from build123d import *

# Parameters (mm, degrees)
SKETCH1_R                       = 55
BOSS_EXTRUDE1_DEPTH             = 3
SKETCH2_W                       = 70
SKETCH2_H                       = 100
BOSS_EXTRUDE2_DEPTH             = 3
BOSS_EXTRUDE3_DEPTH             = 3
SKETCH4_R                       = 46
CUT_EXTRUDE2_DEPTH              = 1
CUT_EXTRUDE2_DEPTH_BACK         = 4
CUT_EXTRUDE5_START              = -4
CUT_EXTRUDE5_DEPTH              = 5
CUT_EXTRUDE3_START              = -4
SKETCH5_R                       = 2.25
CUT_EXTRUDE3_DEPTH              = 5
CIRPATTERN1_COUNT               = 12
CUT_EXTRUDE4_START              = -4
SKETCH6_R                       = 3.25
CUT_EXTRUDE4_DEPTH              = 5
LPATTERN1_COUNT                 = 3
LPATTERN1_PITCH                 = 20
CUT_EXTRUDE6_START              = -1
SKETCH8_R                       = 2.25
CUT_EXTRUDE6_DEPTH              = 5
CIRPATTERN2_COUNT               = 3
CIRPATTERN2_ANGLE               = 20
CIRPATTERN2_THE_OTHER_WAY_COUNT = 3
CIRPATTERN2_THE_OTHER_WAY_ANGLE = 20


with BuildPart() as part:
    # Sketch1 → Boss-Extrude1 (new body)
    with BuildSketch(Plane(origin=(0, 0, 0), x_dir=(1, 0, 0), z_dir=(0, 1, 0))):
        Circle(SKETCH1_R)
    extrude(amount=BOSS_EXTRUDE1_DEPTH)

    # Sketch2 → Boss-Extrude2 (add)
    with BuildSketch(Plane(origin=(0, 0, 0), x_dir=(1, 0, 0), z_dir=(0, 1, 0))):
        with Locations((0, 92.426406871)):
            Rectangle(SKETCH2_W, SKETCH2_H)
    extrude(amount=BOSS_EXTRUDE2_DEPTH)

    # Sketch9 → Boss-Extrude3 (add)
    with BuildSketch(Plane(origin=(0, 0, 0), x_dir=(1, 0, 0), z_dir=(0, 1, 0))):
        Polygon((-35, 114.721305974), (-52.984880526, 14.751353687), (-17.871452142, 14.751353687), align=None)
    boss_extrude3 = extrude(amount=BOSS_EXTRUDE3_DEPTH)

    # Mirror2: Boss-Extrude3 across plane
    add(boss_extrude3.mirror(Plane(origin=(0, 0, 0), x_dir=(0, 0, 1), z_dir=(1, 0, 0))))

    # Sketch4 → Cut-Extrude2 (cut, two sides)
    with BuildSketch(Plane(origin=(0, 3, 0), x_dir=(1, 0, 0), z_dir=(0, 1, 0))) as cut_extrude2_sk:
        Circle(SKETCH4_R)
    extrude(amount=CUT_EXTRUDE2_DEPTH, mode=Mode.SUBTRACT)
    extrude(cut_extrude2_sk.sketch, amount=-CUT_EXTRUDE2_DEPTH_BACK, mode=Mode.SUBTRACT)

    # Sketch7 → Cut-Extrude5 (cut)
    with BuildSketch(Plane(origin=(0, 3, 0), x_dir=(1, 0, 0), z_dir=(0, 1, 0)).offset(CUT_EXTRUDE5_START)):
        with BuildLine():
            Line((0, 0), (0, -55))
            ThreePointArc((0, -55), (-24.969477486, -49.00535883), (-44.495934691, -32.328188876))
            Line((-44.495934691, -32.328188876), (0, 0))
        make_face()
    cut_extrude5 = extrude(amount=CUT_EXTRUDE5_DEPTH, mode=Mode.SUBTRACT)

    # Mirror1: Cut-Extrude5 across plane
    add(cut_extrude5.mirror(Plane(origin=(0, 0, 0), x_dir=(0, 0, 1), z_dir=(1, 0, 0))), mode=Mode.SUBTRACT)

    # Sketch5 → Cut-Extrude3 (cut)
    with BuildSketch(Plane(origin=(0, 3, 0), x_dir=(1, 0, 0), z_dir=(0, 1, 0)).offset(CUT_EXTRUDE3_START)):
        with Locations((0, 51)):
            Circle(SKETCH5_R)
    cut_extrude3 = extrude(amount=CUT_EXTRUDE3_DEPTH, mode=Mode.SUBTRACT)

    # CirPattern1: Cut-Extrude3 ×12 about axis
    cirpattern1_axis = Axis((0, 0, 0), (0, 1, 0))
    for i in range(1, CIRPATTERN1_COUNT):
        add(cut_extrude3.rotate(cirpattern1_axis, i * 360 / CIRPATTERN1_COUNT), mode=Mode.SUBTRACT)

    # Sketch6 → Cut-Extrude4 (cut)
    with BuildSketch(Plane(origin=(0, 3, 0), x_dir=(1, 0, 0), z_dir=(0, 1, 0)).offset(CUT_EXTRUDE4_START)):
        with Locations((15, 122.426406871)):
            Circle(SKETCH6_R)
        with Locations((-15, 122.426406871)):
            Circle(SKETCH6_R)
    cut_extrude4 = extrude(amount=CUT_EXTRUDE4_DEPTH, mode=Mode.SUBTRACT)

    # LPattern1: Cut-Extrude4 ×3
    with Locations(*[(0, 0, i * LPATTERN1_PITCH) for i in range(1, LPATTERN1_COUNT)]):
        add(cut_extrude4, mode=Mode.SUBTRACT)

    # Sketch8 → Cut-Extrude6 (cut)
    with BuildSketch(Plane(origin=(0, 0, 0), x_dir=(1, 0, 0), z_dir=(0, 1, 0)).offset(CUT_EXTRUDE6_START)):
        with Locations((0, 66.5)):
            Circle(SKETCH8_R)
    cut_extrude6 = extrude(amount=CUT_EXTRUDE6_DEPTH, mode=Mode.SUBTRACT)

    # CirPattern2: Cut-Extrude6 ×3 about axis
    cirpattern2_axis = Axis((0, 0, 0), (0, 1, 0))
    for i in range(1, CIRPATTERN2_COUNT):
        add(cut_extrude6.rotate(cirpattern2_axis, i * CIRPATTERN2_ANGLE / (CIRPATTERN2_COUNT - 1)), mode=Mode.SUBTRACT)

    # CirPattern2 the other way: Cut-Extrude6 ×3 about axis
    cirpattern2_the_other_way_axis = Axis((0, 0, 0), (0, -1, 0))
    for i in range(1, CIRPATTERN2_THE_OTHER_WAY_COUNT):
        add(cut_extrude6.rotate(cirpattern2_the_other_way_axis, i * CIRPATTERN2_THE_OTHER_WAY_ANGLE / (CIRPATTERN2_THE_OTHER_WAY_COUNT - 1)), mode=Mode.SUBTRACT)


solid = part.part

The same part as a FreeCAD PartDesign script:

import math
import FreeCAD as App
import Part
import Sketcher
Q = App.Units.Quantity


def add_polygon(sketch, points):
    """Adds a closed chain of lines whose ends are joined by coincident constraints."""
    first, n = sketch.GeometryCount, len(points)
    for a, b in zip(points, points[1:] + points[:1]):
        sketch.addGeometry(Part.LineSegment(App.Vector(*a, 0), App.Vector(*b, 0)), False)
    for i in range(n):
        sketch.addConstraint(Sketcher.Constraint("Coincident", first + i, 2, first + (i + 1) % n, 1))

doc = App.newDocument("Part")
body = doc.addObject("PartDesign::Body", "Body")

# Sketch on XZ plane
sketch1 = body.newObject("Sketcher::SketchObject", "Sketch")
sketch1.AttachmentSupport = (doc.getObject("XZ_Plane"), [""])
sketch1.MapMode = "FlatFace"
sketch1.addGeometry(Part.Circle(App.Vector(0, 0, 0), App.Vector(0, 0, 1), 55), False)
sketch1.addConstraint([
    Sketcher.Constraint("Coincident", 0, 3, -1, 1),
    Sketcher.Constraint("Diameter", 0, Q("110 mm")),
])
pad1 = body.newObject("PartDesign::Pad", "Pad")
pad1.Profile = sketch1
pad1.Length = 3
pad1.Reversed = True

# Sketch on XZ plane
sketch2 = body.newObject("Sketcher::SketchObject", "Sketch001")
sketch2.AttachmentSupport = (doc.getObject("XZ_Plane"), [""])
sketch2.MapMode = "FlatFace"
add_polygon(sketch2, [(-35, -142), (-35, -42), (35, -42), (35, -142)])  # lines 0-3
sketch2.addConstraint([
    Sketcher.Constraint("Vertical", 0),
    Sketcher.Constraint("Horizontal", 1),
    Sketcher.Constraint("Vertical", 2),
    Sketcher.Constraint("Horizontal", 3),
    Sketcher.Constraint("DistanceX", 1, 1, 1, 2, Q("70 mm")),
    Sketcher.Constraint("DistanceY", 0, 1, 0, 2, Q("100 mm")),
    Sketcher.Constraint("DistanceX", 0, 2, -1, 1, Q("35 mm")),
    Sketcher.Constraint("DistanceY", 0, 2, -1, 1, Q("42.426407 mm")),
])
pad2 = body.newObject("PartDesign::Pad", "Pad001")
pad2.Profile = sketch2
pad2.Length = 3
pad2.Reversed = True

# Sketch on XZ plane
sketch3 = body.newObject("Sketcher::SketchObject", "Sketch002")
sketch3.AttachmentSupport = (doc.getObject("XZ_Plane"), [""])
sketch3.MapMode = "FlatFace"
add_polygon(sketch3, [(-35, -115), (-53, -15), (-18, -15)])  # lines 0-2
sketch3.addConstraint([
    Sketcher.Constraint("Horizontal", 1),
    Sketcher.Constraint("DistanceX", 2, 2, -1, 1, Q("35 mm")),
    Sketcher.Constraint("DistanceX", 1, 1, 1, 2, Q("35.113428 mm")),
    Sketcher.Constraint("DistanceX", 0, 2, -1, 1, Q("52.984881 mm")),
    Sketcher.Constraint("Distance", 0, Q("101.574836 mm")),
    Sketcher.Constraint("DistanceY", 0, 2, -1, 1, Q("14.751354 mm")),
])
pad3 = body.newObject("PartDesign::Pad", "Pad002")
pad3.Profile = sketch3
pad3.Length = 3
pad3.Reversed = True
doc.recompute()

mirrored = body.newObject("PartDesign::Mirrored", "Mirrored")
mirrored.Originals = [pad3]
mirrored.MirrorPlane = (doc.getObject("YZ_Plane"), [""])
body.Tip = mirrored

# Sketch on XZ plane
sketch4 = body.newObject("Sketcher::SketchObject", "Sketch003")
sketch4.AttachmentSupport = (doc.getObject("XZ_Plane"), [""])
sketch4.MapMode = "FlatFace"
sketch4.AttachmentOffset = App.Placement(App.Vector(0, 0, -3), App.Rotation())
sketch4.addGeometry(Part.Circle(App.Vector(0, 0, 0), App.Vector(0, 0, 1), 46), False)
sketch4.addConstraint([
    Sketcher.Constraint("Coincident", 0, 3, -1, 1),
    Sketcher.Constraint("Diameter", 0, Q("92 mm")),
])
pocket1 = body.newObject("PartDesign::Pocket", "Pocket")
pocket1.Profile = sketch4
pocket1.Type = "ThroughAll"
pocket1.Midplane = True

# Sketch on XZ plane
sketch5 = body.newObject("Sketcher::SketchObject", "Sketch004")
sketch5.AttachmentSupport = (doc.getObject("XZ_Plane"), [""])
sketch5.MapMode = "FlatFace"
sketch5.AttachmentOffset = App.Placement(App.Vector(0, 0, 1), App.Rotation())
sketch5.addGeometry([
    Part.LineSegment(App.Vector(0, 55, 0), App.Vector(0, 0, 0)),
    Part.LineSegment(App.Vector(0, 0, 0), App.Vector(-44, 32, 0)),
    Part.ArcOfCircle(Part.Circle(App.Vector(0, 0, 0), App.Vector(0, 0, 1), 55), math.radians(90), math.radians(144)),
], False)
sketch5.addConstraint([
    Sketcher.Constraint("Coincident", 0, 2, 1, 1),
    Sketcher.Constraint("Coincident", 1, 2, 2, 2),
    Sketcher.Constraint("Coincident", 2, 1, 0, 1),
    Sketcher.Constraint("Vertical", 0),
    Sketcher.Constraint("Coincident", 2, 3, -1, 1),
    Sketcher.Constraint("Coincident", 0, 2, -1, 1),
    Sketcher.Constraint("Radius", 2, Q("55 mm")),
    Sketcher.Constraint("Angle", 1, Q("144 deg")),
])
pocket2 = body.newObject("PartDesign::Pocket", "Pocket001")
pocket2.Profile = sketch5
pocket2.Length = 5
doc.recompute()

mirrored2 = body.newObject("PartDesign::Mirrored", "Mirrored001")
mirrored2.Originals = [pocket2]
mirrored2.MirrorPlane = (doc.getObject("YZ_Plane"), [""])
body.Tip = mirrored2

# Sketch on XZ plane
sketch6 = body.newObject("Sketcher::SketchObject", "Sketch005")
sketch6.AttachmentSupport = (doc.getObject("XZ_Plane"), [""])
sketch6.MapMode = "FlatFace"
sketch6.AttachmentOffset = App.Placement(App.Vector(0, 0, 1), App.Rotation())
sketch6.addGeometry(Part.Circle(App.Vector(0, -51, 0), App.Vector(0, 0, 1), 2.2), False)
sketch6.addConstraint([
    Sketcher.Constraint("PointOnObject", 0, 3, -2),
    Sketcher.Constraint("Diameter", 0, Q("4.5 mm")),
    Sketcher.Constraint("DistanceY", 0, 3, -1, 1, Q("51 mm")),
])
pocket3 = body.newObject("PartDesign::Pocket", "Pocket002")
pocket3.Profile = sketch6
pocket3.Length = 5
doc.recompute()

polarpattern = body.newObject("PartDesign::PolarPattern", "PolarPattern")
polarpattern.Originals = [pocket3]
polarpattern.Axis = (doc.getObject("Y_Axis"), [""])
polarpattern.Angle = 360
polarpattern.Occurrences = 12
body.Tip = polarpattern

# Sketch on XZ plane
sketch7 = body.newObject("Sketcher::SketchObject", "Sketch006")
sketch7.AttachmentSupport = (doc.getObject("XZ_Plane"), [""])
sketch7.MapMode = "FlatFace"
sketch7.AttachmentOffset = App.Placement(App.Vector(0, 0, 1), App.Rotation())
sketch7.addGeometry([
    Part.Circle(App.Vector(15, -122.4, 0), App.Vector(0, 0, 1), 3.2),
    Part.Circle(App.Vector(-15, -122.4, 0), App.Vector(0, 0, 1), 3.2),
], False)
sketch7.addConstraint([
    Sketcher.Constraint("Equal", 0, 1),
    Sketcher.Constraint("Symmetric", 0, 3, 1, 3, -2),
    Sketcher.Constraint("Diameter", 0, Q("6.5 mm")),
    Sketcher.Constraint("DistanceX", -1, 1, 0, 3, Q("15 mm")),
    Sketcher.Constraint("DistanceY", 0, 3, -1, 1, Q("122.426407 mm")),
])
pocket4 = body.newObject("PartDesign::Pocket", "Pocket003")
pocket4.Profile = sketch7
pocket4.Length = 5
doc.recompute()

linearpattern = body.newObject("PartDesign::LinearPattern", "LinearPattern")
linearpattern.Originals = [pocket4]
linearpattern.Direction = (doc.getObject("Z_Axis"), [""])
linearpattern.Mode = "offset"
linearpattern.Offset = 20
linearpattern.Occurrences = 3
body.Tip = linearpattern

# Sketch on XZ plane
sketch8 = body.newObject("Sketcher::SketchObject", "Sketch007")
sketch8.AttachmentSupport = (doc.getObject("XZ_Plane"), [""])
sketch8.MapMode = "FlatFace"
sketch8.AttachmentOffset = App.Placement(App.Vector(0, 0, 1), App.Rotation())
sketch8.addGeometry(Part.Circle(App.Vector(0, -66.5, 0), App.Vector(0, 0, 1), 2.2), False)
sketch8.addConstraint([
    Sketcher.Constraint("PointOnObject", 0, 3, -2),
    Sketcher.Constraint("Diameter", 0, Q("4.5 mm")),
    Sketcher.Constraint("DistanceY", 0, 3, -1, 1, Q("66.5 mm")),
])
pocket5 = body.newObject("PartDesign::Pocket", "Pocket004")
pocket5.Profile = sketch8
pocket5.Length = 5
doc.recompute()

polarpattern2 = body.newObject("PartDesign::PolarPattern", "PolarPattern001")
polarpattern2.Originals = [pocket5]
polarpattern2.Axis = (doc.getObject("Y_Axis"), [""])
polarpattern2.Angle = 20
polarpattern2.Occurrences = 3
body.Tip = polarpattern2
doc.recompute()

polarpattern3 = body.newObject("PartDesign::PolarPattern", "PolarPattern002")
polarpattern3.Originals = [pocket5]
polarpattern3.Axis = (doc.getObject("Y_Axis"), [""])
polarpattern3.Angle = 20
polarpattern3.Occurrences = 3
polarpattern3.Reversed = True
body.Tip = polarpattern3

doc.recompute()
